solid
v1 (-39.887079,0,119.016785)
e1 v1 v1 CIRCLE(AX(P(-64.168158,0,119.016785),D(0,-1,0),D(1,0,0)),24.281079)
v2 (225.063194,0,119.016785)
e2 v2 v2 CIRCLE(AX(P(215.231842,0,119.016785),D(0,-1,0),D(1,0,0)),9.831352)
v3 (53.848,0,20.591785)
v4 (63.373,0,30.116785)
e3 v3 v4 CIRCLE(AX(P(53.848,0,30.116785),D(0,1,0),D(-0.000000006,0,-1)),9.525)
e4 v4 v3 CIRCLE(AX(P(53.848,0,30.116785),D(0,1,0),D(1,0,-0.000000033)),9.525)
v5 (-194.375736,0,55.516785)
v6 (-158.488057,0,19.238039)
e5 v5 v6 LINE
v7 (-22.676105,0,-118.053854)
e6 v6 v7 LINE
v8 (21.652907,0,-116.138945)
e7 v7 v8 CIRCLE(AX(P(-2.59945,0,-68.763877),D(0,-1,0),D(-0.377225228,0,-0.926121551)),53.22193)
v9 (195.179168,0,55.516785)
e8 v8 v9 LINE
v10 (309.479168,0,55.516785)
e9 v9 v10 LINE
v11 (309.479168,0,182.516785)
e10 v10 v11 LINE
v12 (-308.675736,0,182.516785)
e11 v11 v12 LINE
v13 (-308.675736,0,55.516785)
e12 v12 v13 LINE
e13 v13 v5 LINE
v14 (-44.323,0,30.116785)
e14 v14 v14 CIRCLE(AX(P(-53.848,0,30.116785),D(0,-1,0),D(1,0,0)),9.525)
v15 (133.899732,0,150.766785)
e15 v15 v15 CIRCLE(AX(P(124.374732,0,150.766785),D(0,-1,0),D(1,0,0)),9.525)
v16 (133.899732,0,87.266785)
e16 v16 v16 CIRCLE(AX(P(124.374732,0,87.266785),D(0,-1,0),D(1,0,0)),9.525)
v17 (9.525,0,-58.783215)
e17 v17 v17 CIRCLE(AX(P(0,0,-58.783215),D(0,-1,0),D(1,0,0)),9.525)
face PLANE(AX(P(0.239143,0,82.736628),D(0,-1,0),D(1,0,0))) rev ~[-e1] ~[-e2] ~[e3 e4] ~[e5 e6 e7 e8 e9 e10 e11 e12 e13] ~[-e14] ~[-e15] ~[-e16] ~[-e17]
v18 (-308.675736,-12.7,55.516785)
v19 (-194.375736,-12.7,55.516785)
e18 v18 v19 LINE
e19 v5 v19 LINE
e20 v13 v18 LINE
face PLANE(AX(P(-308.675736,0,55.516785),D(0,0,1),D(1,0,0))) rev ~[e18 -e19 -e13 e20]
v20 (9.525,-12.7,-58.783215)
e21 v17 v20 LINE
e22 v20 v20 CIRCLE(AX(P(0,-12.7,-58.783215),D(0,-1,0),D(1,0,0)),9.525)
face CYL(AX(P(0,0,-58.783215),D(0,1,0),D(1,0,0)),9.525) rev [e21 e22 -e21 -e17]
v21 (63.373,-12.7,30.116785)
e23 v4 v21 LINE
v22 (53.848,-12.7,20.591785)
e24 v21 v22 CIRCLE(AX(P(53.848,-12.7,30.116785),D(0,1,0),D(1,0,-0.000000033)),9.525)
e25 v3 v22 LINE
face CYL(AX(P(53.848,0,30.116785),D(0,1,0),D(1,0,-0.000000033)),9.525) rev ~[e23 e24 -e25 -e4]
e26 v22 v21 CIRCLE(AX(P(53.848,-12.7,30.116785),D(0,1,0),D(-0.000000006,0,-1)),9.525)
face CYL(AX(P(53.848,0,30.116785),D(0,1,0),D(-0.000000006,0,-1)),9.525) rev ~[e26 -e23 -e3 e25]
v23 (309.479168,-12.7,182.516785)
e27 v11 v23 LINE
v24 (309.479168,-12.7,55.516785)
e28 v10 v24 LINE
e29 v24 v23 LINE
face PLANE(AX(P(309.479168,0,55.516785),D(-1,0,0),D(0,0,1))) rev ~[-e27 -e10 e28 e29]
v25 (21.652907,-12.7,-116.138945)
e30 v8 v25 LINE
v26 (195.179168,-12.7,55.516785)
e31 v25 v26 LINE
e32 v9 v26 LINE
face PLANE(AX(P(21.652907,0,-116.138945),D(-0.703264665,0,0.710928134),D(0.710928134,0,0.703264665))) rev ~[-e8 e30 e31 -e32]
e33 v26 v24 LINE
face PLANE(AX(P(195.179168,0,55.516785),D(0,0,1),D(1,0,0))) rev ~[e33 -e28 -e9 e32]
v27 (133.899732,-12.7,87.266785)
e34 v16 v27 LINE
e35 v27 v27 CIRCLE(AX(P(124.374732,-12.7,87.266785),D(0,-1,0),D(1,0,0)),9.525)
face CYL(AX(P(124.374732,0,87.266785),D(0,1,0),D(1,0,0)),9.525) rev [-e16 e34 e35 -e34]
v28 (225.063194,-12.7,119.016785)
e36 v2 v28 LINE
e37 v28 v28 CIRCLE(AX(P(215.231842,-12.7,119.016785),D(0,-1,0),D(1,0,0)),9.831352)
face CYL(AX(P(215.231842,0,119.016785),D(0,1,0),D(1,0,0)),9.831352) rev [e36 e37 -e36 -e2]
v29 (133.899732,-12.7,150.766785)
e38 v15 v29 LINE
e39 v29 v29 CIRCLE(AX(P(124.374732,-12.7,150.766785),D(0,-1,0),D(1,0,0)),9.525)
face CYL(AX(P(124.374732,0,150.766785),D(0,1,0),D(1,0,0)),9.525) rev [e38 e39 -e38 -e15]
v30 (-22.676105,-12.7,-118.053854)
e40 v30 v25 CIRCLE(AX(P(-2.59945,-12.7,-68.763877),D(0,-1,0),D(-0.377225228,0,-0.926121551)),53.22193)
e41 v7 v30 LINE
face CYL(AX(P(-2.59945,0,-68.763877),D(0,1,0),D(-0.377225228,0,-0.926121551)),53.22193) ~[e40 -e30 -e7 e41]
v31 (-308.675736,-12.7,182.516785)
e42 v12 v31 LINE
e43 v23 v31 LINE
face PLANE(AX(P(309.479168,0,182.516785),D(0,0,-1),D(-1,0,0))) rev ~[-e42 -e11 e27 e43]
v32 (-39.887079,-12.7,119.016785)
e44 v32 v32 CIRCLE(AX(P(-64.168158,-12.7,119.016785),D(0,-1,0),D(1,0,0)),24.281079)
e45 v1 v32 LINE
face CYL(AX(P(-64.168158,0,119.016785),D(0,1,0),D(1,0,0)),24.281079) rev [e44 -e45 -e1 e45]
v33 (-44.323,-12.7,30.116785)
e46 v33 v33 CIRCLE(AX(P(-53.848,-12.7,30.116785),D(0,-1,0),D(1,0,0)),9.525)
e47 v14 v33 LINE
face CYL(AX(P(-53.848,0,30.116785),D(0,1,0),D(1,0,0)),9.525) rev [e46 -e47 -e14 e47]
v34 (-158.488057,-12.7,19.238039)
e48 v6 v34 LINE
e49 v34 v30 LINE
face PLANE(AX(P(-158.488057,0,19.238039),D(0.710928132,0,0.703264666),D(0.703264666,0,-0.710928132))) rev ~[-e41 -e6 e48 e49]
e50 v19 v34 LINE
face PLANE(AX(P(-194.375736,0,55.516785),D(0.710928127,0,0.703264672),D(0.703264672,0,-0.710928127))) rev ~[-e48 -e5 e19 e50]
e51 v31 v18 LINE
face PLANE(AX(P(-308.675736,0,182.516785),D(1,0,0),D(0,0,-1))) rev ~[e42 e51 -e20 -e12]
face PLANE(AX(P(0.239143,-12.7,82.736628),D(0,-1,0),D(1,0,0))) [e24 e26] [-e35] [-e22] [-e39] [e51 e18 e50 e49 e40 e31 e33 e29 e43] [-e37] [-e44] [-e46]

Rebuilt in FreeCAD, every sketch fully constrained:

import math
import FreeCAD as App
import Part
import Sketcher
Q = App.Units.Quantity

doc = App.newDocument("Part")
body = doc.addObject("PartDesign::Body", "Body")

# Sketch on XZ plane
sketch1 = body.newObject("Sketcher::SketchObject", "Sketch")
sketch1.AttachmentSupport = (doc.getObject("XZ_Plane"), [""])
sketch1.MapMode = "FlatFace"
sketch1.addGeometry([
    Part.LineSegment(App.Vector(-308.675736, 182.516785, 0), App.Vector(-308.675736, 55.516785, 0)),  # 0
    Part.LineSegment(App.Vector(-308.675736, 55.516785, 0), App.Vector(-194.375736, 55.516785, 0)),  # 1
    Part.LineSegment(App.Vector(-194.375736, 55.516785, 0), App.Vector(-158.488057, 19.238039, 0)),  # 2
    Part.LineSegment(App.Vector(-158.488057, 19.238039, 0), App.Vector(-22.676105, -118.053854, 0)),  # 3
    Part.ArcOfCircle(Part.Circle(App.Vector(-2.59945, -68.763877, 0), App.Vector(0, 0, 1), 53.22193), math.radians(-112.161912), math.radians(-62.891077)),  # 4
    Part.LineSegment(App.Vector(21.652907, -116.138945, 0), App.Vector(195.179168, 55.516785, 0)),  # 5
    Part.LineSegment(App.Vector(195.179168, 55.516785, 0), App.Vector(309.479168, 55.516785, 0)),  # 6
    Part.LineSegment(App.Vector(309.479168, 55.516785, 0), App.Vector(309.479168, 182.516785, 0)),  # 7
    Part.LineSegment(App.Vector(309.479168, 182.516785, 0), App.Vector(-308.675736, 182.516785, 0)),  # 8
    Part.Circle(App.Vector(0, -58.783215, 0), App.Vector(0, 0, 1), 9.525),  # 9
    Part.Circle(App.Vector(-53.848, 30.116785, 0), App.Vector(0, 0, 1), 9.525),  # 10
    Part.ArcOfCircle(Part.Circle(App.Vector(53.848, 30.116785, 0), App.Vector(0, 0, 1), 9.525), math.radians(-89.999998), math.radians(-0.000002)),  # 11
    Part.ArcOfCircle(Part.Circle(App.Vector(53.848, 30.116785, 0), App.Vector(0, 0, 1), 9.525), math.radians(0), math.radians(270)),  # 12
    Part.Circle(App.Vector(-64.168158, 119.016785, 0), App.Vector(0, 0, 1), 24.281079),  # 13
    Part.Circle(App.Vector(124.374732, 87.266785, 0), App.Vector(0, 0, 1), 9.525),  # 14
    Part.Circle(App.Vector(124.374732, 150.766785, 0), App.Vector(0, 0, 1), 9.525),  # 15
    Part.Circle(App.Vector(215.231842, 119.016785, 0), App.Vector(0, 0, 1), 9.831352),  # 16
], False)
sketch1.addConstraint([
    Sketcher.Constraint("Coincident", 0, 2, 1, 1),
    Sketcher.Constraint("Coincident", 1, 2, 2, 1),
    Sketcher.Constraint("Coincident", 2, 2, 3, 1),
    Sketcher.Constraint("Coincident", 3, 2, 4, 1),
    Sketcher.Constraint("Coincident", 4, 2, 5, 1),
    Sketcher.Constraint("Coincident", 5, 2, 6, 1),
    Sketcher.Constraint("Coincident", 6, 2, 7, 1),
    Sketcher.Constraint("Coincident", 7, 2, 8, 1),
    Sketcher.Constraint("Coincident", 8, 2, 0, 1),
    Sketcher.Constraint("Tangent", 11, 1, 12, 2),
    Sketcher.Constraint("Coincident", 12, 1, 11, 2),
    Sketcher.Constraint("Vertical", 0),
    Sketcher.Constraint("Horizontal", 1),
    Sketcher.Constraint("Horizontal", 6),
    Sketcher.Constraint("Vertical", 7),
    Sketcher.Constraint("Horizontal", 8),
    Sketcher.Constraint("Equal", 9, 10),
    Sketcher.Constraint("Equal", 10, 11),
    Sketcher.Constraint("Equal", 12, 14),
    Sketcher.Constraint("Equal", 14, 15),
    Sketcher.Constraint("Symmetric", 10, 3, 11, 3, -2),
    Sketcher.Constraint("PointOnObject", 9, 3, -2),
    Sketcher.Constraint("Parallel", 2, 3),
    Sketcher.Constraint("Perpendicular", 3, 5),
    Sketcher.Constraint("Horizontal", 13, 3, 16, 3),
    Sketcher.Constraint("Horizontal", 1, 2, 5, 2),
    Sketcher.Constraint("Horizontal", 11, 3, 12, 1),
    Sketcher.Constraint("Vertical", 14, 3, 15, 3),
    Sketcher.Constraint("Vertical", 12, 3, 11, 1),
    Sketcher.Constraint("Equal", 1, 6),
    Sketcher.Constraint("Diameter", 9, Q("0.75 in")),
    Sketcher.Constraint("DistanceY", 0, 2, 0, 1, Q("5 in")),
    Sketcher.Constraint("DistanceX", 1, 1, 1, 2, Q("4.5 in")),
    Sketcher.Constraint("DistanceY", 9, 3, 13, 3, Q("7 in")),
    Sketcher.Constraint("DistanceY", 10, 3, 0, 2, Q("1 in")),
    Sketcher.Constraint("DistanceY", 9, 3, 10, 3, Q("3.5 in")),
    Sketcher.Constraint("DistanceY", 14, 3, 15, 3, Q("2.5 in")),
    Sketcher.Constraint("DistanceX", 10, 3, -1, 1, Q("2.12 in")),
    Sketcher.Constraint("DistanceY", 12, 3, 14, 3, Q("2.25 in")),
    Sketcher.Constraint("Radius", 4, Q("53.22193 mm")),
    Sketcher.Constraint("Diameter", 13, Q("48.562158 mm")),
    Sketcher.Constraint("Diameter", 16, Q("19.662704 mm")),
    Sketcher.Constraint("DistanceY", 9, 3, -1, 1, Q("2.3142998 in")),
    Sketcher.Constraint("DistanceX", 2, 2, 13, 3, Q("94.319899 mm")),
    Sketcher.Constraint("Distance", 5, Q("244.08411 mm")),
    Sketcher.Constraint("DistanceX", 8, 2, 8, 1, Q("618.154904 mm")),
    Sketcher.Constraint("DistanceX", 4, 3, -1, 1, Q("2.59945 mm")),
    Sketcher.Constraint("DistanceX", 13, 3, -1, 1, Q("64.168158 mm")),
    Sketcher.Constraint("DistanceX", -1, 1, 14, 3, Q("124.374732 mm")),
    Sketcher.Constraint("DistanceX", -1, 1, 16, 3, Q("215.231842 mm")),
    Sketcher.Constraint("DistanceY", -1, 1, 2, 2, Q("19.238039 mm")),
    Sketcher.Constraint("DistanceX", -1, 1, 5, 2, Q("195.179168 mm")),
])
pad1 = body.newObject("PartDesign::Pad", "Pad")
pad1.Profile = sketch1
pad1.Length = Q("0.5 in")

doc.recompute()
